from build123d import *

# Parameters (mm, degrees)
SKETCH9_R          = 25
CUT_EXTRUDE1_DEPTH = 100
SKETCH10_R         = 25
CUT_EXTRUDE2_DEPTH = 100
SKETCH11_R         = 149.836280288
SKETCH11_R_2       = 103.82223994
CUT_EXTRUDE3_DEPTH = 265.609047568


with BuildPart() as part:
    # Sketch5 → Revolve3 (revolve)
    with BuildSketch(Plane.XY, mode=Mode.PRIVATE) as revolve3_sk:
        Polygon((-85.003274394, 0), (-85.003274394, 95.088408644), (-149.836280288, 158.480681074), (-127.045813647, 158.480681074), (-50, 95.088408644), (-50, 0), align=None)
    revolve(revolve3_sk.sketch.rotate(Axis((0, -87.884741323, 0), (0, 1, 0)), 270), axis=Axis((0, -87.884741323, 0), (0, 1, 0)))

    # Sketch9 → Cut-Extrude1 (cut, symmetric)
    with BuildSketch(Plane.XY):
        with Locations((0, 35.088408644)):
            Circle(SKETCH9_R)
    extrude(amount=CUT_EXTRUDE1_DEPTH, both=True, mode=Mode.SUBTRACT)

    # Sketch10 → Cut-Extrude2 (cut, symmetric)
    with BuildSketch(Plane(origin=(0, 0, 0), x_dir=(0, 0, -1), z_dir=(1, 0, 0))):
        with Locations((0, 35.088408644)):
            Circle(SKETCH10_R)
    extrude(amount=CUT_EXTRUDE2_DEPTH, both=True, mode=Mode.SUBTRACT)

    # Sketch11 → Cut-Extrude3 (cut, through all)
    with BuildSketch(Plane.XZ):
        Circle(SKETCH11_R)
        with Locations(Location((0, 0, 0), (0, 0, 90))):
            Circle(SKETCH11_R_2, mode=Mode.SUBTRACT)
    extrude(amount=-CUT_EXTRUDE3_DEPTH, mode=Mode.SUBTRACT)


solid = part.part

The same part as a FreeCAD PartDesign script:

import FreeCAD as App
import Part
import Sketcher

doc = App.newDocument("Part")
body = doc.addObject("PartDesign::Body", "Body")

# Sketch on XY plane
sketch1 = body.newObject("Sketcher::SketchObject", "Sketch")
sketch1.AttachmentSupport = (doc.getObject("XY_Plane"), [""])
sketch1.MapMode = "FlatFace"
sketch1.addGeometry([
    Part.LineSegment(App.Vector(-85, 95, 0), App.Vector(-85, 0, 0)),  # 0
    Part.LineSegment(App.Vector(-85, 0, 0), App.Vector(-50, 0, 0)),  # 1
    Part.LineSegment(App.Vector(-50, 0, 0), App.Vector(-50, 95, 0)),  # 2
    Part.LineSegment(App.Vector(-50, 95, 0), App.Vector(-127, 158, 0)),  # 3
    Part.LineSegment(App.Vector(-127, 158, 0), App.Vector(-150, 158, 0)),  # 4
    Part.LineSegment(App.Vector(-150, 158, 0), App.Vector(-85, 95, 0)),  # 5
], False)
sketch1.addConstraint([
    Sketcher.Constraint("Coincident", 0, 2, 1, 1),
    Sketcher.Constraint("Coincident", 1, 2, 2, 1),
    Sketcher.Constraint("Coincident", 2, 2, 3, 1),
    Sketcher.Constraint("Coincident", 3, 2, 4, 1),
    Sketcher.Constraint("Coincident", 4, 2, 5, 1),
    Sketcher.Constraint("Coincident", 5, 2, 0, 1),
    Sketcher.Constraint("Vertical", 0),
    Sketcher.Constraint("Horizontal", 1),
    Sketcher.Constraint("Vertical", 2),
    Sketcher.Constraint("Horizontal", 4),
    Sketcher.Constraint("PointOnObject", 0, 2, -1),
    Sketcher.Constraint("Horizontal", 2, 2, 5, 2),
    Sketcher.Constraint("DistanceX", 1, 2, -1, 1, 50.0),
    Sketcher.Constraint("DistanceY", 0, 2, 0, 1, 95.088409),
    Sketcher.Constraint("Distance", 3, 99.77293),
    Sketcher.Constraint("DistanceX", 1, 1, 1, 2, 35.003274),
    Sketcher.Constraint("DistanceX", 4, 2, 4, 1, 22.790467),
    Sketcher.Constraint("DistanceY", -1, 1, 3, 2, 158.480681),
])
revolution = body.newObject("PartDesign::Revolution", "Revolution")
revolution.Profile = sketch1
revolution.ReferenceAxis = (sketch1, ["V_Axis"])
revolution.Angle = 360

# Sketch on XY plane
sketch2 = body.newObject("Sketcher::SketchObject", "Sketch001")
sketch2.AttachmentSupport = (doc.getObject("XY_Plane"), [""])
sketch2.MapMode = "FlatFace"
sketch2.addGeometry(Part.Circle(App.Vector(0, 35, 0), App.Vector(0, 0, 1), 25), False)
sketch2.addConstraint([
    Sketcher.Constraint("PointOnObject", 0, 3, -2),
    Sketcher.Constraint("Diameter", 0, 50.0),
    Sketcher.Constraint("DistanceY", -1, 1, 0, 3, 35.088409),
])
pocket1 = body.newObject("PartDesign::Pocket", "Pocket")
pocket1.Profile = sketch2
pocket1.Length = 200
pocket1.Midplane = True

# Sketch on YZ plane
sketch3 = body.newObject("Sketcher::SketchObject", "Sketch002")
sketch3.AttachmentSupport = (doc.getObject("YZ_Plane"), [""])
sketch3.MapMode = "FlatFace"
sketch3.addGeometry(Part.Circle(App.Vector(35, 0, 0), App.Vector(0, 0, 1), 25), False)
sketch3.addConstraint([
    Sketcher.Constraint("PointOnObject", 0, 3, -1),
    Sketcher.Constraint("Diameter", 0, 50.0),
    Sketcher.Constraint("DistanceX", -1, 1, 0, 3, 35.088409),
])
pocket2 = body.newObject("PartDesign::Pocket", "Pocket001")
pocket2.Profile = sketch3
pocket2.Length = 200
pocket2.Midplane = True

# Sketch on XZ plane
sketch4 = body.newObject("Sketcher::SketchObject", "Sketch003")
sketch4.AttachmentSupport = (doc.getObject("XZ_Plane"), [""])
sketch4.MapMode = "FlatFace"
sketch4.addGeometry([
    Part.Circle(App.Vector(0, 0, 0), App.Vector(0, 0, 1), 150),
    Part.Circle(App.Vector(0, 0, 0), App.Vector(0, 0, 1), 104),
], False)
sketch4.addConstraint([
    Sketcher.Constraint("Coincident", 0, 3, -1, 1),
    Sketcher.Constraint("Coincident", 1, 3, -1, 1),
    Sketcher.Constraint("Diameter", 0, 299.672561),
    Sketcher.Constraint("Diameter", 1, 207.64448),
])
pocket3 = body.newObject("PartDesign::Pocket", "Pocket002")
pocket3.Profile = sketch4
pocket3.Type = "ThroughAll"

doc.recompute()
